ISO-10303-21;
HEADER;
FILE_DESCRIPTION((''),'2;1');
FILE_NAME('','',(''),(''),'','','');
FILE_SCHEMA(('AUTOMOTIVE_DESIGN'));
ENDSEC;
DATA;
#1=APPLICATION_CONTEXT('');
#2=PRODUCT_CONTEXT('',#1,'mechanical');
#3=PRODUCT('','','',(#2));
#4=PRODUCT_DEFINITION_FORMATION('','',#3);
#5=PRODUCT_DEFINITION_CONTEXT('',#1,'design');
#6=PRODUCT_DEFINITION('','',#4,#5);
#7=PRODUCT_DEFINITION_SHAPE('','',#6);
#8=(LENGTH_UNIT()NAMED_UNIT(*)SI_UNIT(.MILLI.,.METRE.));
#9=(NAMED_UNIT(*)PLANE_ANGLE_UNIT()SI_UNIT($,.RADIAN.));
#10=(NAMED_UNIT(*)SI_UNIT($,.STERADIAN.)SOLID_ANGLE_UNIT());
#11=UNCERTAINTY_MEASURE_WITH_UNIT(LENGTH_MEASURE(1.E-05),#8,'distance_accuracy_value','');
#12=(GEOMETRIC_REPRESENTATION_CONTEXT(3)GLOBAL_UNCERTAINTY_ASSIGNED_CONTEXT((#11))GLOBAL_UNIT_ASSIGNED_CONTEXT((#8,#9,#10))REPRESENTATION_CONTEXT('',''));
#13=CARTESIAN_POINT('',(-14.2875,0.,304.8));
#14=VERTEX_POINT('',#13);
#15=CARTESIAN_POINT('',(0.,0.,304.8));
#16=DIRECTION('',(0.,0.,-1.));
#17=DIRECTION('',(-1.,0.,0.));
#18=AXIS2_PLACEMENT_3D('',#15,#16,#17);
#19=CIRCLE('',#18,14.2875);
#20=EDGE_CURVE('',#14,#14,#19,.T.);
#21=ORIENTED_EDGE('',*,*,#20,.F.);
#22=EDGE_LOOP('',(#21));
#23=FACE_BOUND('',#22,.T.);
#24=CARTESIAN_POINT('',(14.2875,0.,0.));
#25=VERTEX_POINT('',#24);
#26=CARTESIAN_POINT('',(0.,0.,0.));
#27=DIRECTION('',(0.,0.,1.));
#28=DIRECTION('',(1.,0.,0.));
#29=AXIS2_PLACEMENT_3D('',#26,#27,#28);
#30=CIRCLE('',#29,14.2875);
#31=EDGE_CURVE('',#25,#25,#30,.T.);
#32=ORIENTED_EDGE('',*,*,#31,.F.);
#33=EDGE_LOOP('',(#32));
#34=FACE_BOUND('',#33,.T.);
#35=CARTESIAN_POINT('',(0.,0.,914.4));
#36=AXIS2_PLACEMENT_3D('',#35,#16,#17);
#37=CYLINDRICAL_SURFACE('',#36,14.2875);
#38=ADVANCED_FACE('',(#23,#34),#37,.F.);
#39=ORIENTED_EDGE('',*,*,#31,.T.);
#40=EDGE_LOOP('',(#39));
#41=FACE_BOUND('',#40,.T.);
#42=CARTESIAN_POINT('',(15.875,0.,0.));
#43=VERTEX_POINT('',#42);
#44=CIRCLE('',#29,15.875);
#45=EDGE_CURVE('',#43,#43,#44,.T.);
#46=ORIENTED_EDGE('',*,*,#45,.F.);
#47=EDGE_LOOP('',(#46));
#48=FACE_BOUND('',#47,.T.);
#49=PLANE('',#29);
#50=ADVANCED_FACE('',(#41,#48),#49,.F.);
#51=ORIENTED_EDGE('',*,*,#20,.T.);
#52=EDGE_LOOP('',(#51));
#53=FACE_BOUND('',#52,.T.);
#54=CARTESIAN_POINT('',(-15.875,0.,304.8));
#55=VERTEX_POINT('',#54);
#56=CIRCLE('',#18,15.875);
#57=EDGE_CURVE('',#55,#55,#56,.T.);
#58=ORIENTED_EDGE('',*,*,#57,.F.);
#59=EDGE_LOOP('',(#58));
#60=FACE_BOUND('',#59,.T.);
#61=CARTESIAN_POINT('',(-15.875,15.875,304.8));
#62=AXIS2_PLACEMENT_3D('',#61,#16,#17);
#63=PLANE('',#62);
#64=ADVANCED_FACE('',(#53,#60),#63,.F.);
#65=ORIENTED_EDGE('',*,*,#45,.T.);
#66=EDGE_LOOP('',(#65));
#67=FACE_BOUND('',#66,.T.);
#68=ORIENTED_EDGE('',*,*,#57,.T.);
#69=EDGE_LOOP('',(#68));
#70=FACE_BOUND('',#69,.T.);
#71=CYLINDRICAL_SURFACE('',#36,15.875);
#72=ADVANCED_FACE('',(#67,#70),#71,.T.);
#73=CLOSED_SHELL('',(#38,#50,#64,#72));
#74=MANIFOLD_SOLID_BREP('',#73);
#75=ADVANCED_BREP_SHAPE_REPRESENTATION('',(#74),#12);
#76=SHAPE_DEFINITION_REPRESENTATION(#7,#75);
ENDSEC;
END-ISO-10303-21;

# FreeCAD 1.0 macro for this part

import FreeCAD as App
import Part
import Sketcher

V = App.Vector
Q = App.Units.Quantity


def add_polygon(sketch, points):
    """Adds a closed chain of lines whose ends are joined by coincident constraints."""
    first, n = sketch.GeometryCount, len(points)
    for a, b in zip(points, points[1:] + points[:1]):
        sketch.addGeometry(Part.LineSegment(App.Vector(*a, 0), App.Vector(*b, 0)), False)
    for i in range(n):
        sketch.addConstraint(Sketcher.Constraint("Coincident", first + i, 2, first + (i + 1) % n, 1))

doc = App.newDocument("Part")
body = doc.addObject("PartDesign::Body", "Body")

sketch1 = body.newObject("Sketcher::SketchObject", "Sketch")
sketch1.AttachmentSupport = (doc.getObject("XY_Plane"), [""])
sketch1.MapMode = "FlatFace"
sketch1.addGeometry(Part.Circle(V(0, 0, 0), V(0, 0, 1), 16), False)
sketch1.addGeometry(Part.Circle(V(0, 0, 0), V(0, 0, 1), 14), False)
sketch1.addConstraint(Sketcher.Constraint("Coincident", 0, 3, -1, 1))
sketch1.addConstraint(Sketcher.Constraint("Coincident", 1, 3, -1, 1))
sketch1.addConstraint(Sketcher.Constraint("Diameter", 0, Q("1.25 in")))
sketch1.addConstraint(Sketcher.Constraint("Diameter", 1, Q("1.125 in")))
pad1 = body.newObject("PartDesign::Pad", "Pad")
pad1.Profile = sketch1
pad1.Length = Q("36 in")

sketch2 = body.newObject("Sketcher::SketchObject", "Sketch001")
sketch2.AttachmentSupport = (doc.getObject("YZ_Plane"), [""])
sketch2.MapMode = "FlatFace"
add_polygon(sketch2, [(16, 914), (-16, 914), (-16, 305), (16, 305)])
sketch2.addConstraint(Sketcher.Constraint("Horizontal", 0))
sketch2.addConstraint(Sketcher.Constraint("Vertical", 1))
sketch2.addConstraint(Sketcher.Constraint("Horizontal", 2))
sketch2.addConstraint(Sketcher.Constraint("Vertical", 3))
sketch2.addConstraint(Sketcher.Constraint("DistanceY", 1, 2, 1, 1, Q("24 in")))
sketch2.addConstraint(Sketcher.Constraint("DistanceY", -1, 1, 0, 2, Q("36 in")))
sketch2.addConstraint(Sketcher.Constraint("DistanceX", 0, 2, 0, 1, Q("1.25 in")))
sketch2.addConstraint(Sketcher.Constraint("DistanceX", 0, 2, -1, 1, Q("0.625 in")))
pocket1 = body.newObject("PartDesign::Pocket", "Pocket")
pocket1.Profile = sketch2
pocket1.Type = "ThroughAll"
pocket1.Midplane = True

doc.recompute()
